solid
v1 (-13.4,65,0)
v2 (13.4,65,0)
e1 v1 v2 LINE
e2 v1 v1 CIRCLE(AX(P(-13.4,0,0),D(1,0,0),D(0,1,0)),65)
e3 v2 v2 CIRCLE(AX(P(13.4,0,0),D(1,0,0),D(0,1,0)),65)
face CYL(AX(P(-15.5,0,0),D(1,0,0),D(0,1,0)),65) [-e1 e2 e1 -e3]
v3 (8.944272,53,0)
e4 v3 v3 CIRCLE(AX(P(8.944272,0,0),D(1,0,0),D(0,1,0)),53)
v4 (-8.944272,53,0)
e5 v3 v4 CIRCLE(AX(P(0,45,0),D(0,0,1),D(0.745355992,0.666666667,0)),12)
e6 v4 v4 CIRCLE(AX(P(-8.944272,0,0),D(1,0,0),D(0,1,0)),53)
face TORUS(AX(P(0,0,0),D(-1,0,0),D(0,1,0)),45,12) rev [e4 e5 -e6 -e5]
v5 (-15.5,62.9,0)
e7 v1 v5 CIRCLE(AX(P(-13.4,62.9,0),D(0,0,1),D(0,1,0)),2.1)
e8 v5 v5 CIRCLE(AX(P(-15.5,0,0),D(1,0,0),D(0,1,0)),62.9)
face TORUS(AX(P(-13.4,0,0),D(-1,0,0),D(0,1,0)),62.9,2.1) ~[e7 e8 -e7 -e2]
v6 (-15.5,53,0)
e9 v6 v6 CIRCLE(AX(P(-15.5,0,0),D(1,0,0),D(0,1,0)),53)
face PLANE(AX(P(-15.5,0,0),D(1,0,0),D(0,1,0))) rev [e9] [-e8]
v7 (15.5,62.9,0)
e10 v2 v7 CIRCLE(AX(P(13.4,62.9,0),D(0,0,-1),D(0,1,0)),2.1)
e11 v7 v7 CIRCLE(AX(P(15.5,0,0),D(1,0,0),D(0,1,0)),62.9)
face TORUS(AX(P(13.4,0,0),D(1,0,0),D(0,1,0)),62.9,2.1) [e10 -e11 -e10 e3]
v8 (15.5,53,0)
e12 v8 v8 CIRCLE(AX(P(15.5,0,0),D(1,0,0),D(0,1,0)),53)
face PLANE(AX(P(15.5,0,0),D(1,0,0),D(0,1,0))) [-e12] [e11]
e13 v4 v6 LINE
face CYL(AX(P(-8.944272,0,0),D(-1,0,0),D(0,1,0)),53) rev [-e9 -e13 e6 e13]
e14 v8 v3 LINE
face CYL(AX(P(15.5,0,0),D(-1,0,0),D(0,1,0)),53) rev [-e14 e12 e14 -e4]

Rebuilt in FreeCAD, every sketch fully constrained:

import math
import FreeCAD as App
import Part
import Sketcher
Q = App.Units.Quantity


def edges_at(feature, points):
    """Names of the edges that pass closest to the given points."""
    edges = feature.Shape.Edges
    near = lambda p: min(range(len(edges)), key=lambda i: edges[i].distToShape(Part.Vertex(*p))[0])
    return sorted({f"Edge{near(p) + 1}" for p in points})

doc = App.newDocument("Part")
body = doc.addObject("PartDesign::Body", "Body")

# Sketch on XY plane
sketch1 = body.newObject("Sketcher::SketchObject", "Sketch")
sketch1.AttachmentSupport = (doc.getObject("XY_Plane"), [""])
sketch1.MapMode = "FlatFace"
sketch1.addGeometry([
    Part.LineSegment(App.Vector(16, 65, 0), App.Vector(-16, 65, 0)),  # 0
    Part.LineSegment(App.Vector(-16, 65, 0), App.Vector(-16, 53, 0)),  # 1
    Part.LineSegment(App.Vector(-16, 53, 0), App.Vector(-9, 53, 0)),  # 2
    Part.ArcOfCircle(Part.Circle(App.Vector(0, 45, 0), App.Vector(0, 0, 1), 12), math.radians(42), math.radians(138)),  # 3
    Part.LineSegment(App.Vector(9, 53, 0), App.Vector(16, 53, 0)),  # 4
    Part.LineSegment(App.Vector(16, 53, 0), App.Vector(16, 65, 0)),  # 5
], False)
sketch1.addConstraint([
    Sketcher.Constraint("Coincident", 0, 2, 1, 1),
    Sketcher.Constraint("Coincident", 1, 2, 2, 1),
    Sketcher.Constraint("Coincident", 2, 2, 3, 2),
    Sketcher.Constraint("Coincident", 3, 1, 4, 1),
    Sketcher.Constraint("Coincident", 4, 2, 5, 1),
    Sketcher.Constraint("Coincident", 5, 2, 0, 1),
    Sketcher.Constraint("Horizontal", 0),
    Sketcher.Constraint("Vertical", 1),
    Sketcher.Constraint("Horizontal", 2),
    Sketcher.Constraint("Horizontal", 4),
    Sketcher.Constraint("Vertical", 5),
    Sketcher.Constraint("Symmetric", 2, 2, 3, 1, -2),
    Sketcher.Constraint("Equal", 2, 4),
    Sketcher.Constraint("Radius", 3, Q("12 mm")),
    Sketcher.Constraint("DistanceX", 0, 2, 0, 1, Q("31 mm")),
    Sketcher.Constraint("DistanceY", 1, 2, 1, 1, Q("12 mm")),
    Sketcher.Constraint("DistanceY", -1, 1, 3, 3, Q("45 mm")),
    Sketcher.Constraint("DistanceY", -1, 1, 0, 2, Q("65 mm")),
])
revolution = body.newObject("PartDesign::Revolution", "Revolution")
revolution.Profile = sketch1
revolution.ReferenceAxis = (sketch1, ["H_Axis"])
revolution.Angle = 360
doc.recompute()

fillet = body.newObject("PartDesign::Fillet", "Fillet")
fillet.Base = (revolution, edges_at(revolution, [(-15.5, -65, 0), (15.5, -65, 0)]))
fillet.Radius = 2.1

doc.recompute()
